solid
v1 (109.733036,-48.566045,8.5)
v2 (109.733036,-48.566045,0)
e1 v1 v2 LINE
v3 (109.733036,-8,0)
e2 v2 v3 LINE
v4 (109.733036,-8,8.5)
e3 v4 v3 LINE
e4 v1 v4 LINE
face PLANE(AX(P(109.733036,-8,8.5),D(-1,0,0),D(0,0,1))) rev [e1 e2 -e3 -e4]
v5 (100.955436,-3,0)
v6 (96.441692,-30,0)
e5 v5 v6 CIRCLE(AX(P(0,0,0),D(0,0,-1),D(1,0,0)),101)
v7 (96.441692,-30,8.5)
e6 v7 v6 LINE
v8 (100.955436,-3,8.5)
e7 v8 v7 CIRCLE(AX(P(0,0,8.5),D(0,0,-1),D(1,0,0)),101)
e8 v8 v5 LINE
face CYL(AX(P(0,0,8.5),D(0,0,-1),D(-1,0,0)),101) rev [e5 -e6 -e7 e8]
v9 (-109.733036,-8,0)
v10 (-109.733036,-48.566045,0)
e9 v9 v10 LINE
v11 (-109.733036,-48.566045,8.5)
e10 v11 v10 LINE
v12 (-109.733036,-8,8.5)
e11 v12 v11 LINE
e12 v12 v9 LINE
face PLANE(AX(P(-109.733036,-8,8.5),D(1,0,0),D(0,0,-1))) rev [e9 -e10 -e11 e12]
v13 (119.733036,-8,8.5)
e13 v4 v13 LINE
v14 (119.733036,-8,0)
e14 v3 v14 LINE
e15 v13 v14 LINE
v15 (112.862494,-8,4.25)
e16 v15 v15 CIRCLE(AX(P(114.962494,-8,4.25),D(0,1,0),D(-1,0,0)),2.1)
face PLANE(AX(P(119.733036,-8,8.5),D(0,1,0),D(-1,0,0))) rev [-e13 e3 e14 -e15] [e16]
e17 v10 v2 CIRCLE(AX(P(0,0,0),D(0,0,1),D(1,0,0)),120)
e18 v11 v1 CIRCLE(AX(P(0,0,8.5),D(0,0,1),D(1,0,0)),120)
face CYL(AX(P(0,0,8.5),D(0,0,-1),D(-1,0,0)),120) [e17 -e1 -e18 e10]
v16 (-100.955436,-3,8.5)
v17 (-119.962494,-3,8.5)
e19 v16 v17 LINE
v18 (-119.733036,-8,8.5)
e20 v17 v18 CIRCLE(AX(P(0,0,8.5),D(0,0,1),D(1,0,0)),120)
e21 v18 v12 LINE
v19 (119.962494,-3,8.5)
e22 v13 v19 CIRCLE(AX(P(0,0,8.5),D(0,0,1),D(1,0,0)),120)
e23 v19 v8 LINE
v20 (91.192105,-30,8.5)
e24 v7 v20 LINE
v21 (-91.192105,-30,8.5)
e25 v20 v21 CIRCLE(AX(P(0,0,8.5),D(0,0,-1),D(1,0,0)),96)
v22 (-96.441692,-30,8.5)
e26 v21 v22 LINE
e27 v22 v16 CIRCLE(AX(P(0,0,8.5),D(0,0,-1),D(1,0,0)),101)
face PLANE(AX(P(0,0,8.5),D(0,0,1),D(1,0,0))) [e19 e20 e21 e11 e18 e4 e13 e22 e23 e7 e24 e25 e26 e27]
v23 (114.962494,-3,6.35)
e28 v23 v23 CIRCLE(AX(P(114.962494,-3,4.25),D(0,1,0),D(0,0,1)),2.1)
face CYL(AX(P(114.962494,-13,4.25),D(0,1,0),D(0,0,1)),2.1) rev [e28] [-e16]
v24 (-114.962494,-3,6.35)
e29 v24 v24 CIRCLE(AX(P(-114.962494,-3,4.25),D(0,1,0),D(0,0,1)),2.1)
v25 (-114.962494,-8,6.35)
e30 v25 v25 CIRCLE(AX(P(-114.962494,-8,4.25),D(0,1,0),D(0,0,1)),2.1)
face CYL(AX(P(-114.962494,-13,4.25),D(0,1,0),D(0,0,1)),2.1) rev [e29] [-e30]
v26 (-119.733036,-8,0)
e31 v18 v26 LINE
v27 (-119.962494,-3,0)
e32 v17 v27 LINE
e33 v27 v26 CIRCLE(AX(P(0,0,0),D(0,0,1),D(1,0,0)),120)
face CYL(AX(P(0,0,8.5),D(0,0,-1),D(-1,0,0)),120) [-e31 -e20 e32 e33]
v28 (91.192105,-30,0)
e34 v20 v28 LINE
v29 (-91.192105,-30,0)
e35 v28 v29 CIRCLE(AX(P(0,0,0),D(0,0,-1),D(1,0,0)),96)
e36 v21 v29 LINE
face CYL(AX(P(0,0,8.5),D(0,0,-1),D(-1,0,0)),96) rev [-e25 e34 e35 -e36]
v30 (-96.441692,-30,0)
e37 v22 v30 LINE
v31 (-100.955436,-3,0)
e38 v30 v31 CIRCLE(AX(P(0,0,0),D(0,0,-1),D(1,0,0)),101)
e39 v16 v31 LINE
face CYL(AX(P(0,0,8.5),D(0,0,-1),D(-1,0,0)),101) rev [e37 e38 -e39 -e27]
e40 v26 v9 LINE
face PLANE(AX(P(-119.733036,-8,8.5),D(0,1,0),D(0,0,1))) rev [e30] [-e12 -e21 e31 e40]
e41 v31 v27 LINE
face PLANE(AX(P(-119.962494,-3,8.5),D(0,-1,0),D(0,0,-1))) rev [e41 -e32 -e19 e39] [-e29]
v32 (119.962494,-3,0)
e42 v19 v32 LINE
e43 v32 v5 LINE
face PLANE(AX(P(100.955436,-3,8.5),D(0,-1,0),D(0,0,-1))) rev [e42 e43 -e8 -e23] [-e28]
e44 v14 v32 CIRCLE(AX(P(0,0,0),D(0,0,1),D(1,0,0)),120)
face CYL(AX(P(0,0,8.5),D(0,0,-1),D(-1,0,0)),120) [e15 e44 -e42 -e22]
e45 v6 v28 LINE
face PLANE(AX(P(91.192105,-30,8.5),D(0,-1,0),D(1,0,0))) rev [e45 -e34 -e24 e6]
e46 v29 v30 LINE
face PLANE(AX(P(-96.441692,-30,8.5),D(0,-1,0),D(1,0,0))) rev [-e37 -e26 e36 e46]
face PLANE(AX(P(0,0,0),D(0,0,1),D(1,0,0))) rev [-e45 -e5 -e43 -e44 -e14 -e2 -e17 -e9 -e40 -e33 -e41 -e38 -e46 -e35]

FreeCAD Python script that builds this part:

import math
import FreeCAD as App
import Part
import Sketcher

V = App.Vector
Q = App.Units.Quantity

doc = App.newDocument("Part")
params = doc.addObject("Spreadsheet::Sheet", "Params")
for row, (alias, value) in enumerate([
    ("sketch1_radius", "120 mm"),
    ("sketch1_radius2", "101 mm"),
    ("sketch1_radius3", "96 mm"),
    ("sketch1_width", "10 mm"),
    ("pad1_length", "8.5 mm"),
    ("sketch2_diameter", "4.2 mm"),
    ("pocket1_length", "10 mm"),
], start=1):
    params.set(f"A{row}", alias)
    params.set(f"B{row}", "=" + value)
    params.setAlias(f"B{row}", alias)

body = doc.addObject("PartDesign::Body", "Body")

# Sketch on XY plane
sketch1 = body.newObject("Sketcher::SketchObject", "Sketch")
sketch1.AttachmentSupport = (doc.getObject("XY_Plane"), [""])
sketch1.MapMode = "FlatFace"
sketch1.addGeometry([
    Part.LineSegment(V(-120, -8, 0), V(-110, -8, 0)),  # 0
    Part.LineSegment(V(-110, -8, 0), V(-110, -49, 0)),  # 1
    Part.ArcOfCircle(Part.Circle(V(0, 0, 0), V(0, 0, 1), 120), math.radians(-156), math.radians(-24)),  # 2
    Part.LineSegment(V(110, -49, 0), V(110, -8, 0)),  # 3
    Part.LineSegment(V(110, -8, 0), V(120, -8, 0)),  # 4
    Part.ArcOfCircle(Part.Circle(V(0, 0, 0), V(0, 0, 1), 120), math.radians(-3.82), math.radians(-1.43)),  # 5
    Part.LineSegment(V(120, -3, 0), V(101, -3, 0)),  # 6
    Part.ArcOfCircle(Part.Circle(V(0, 0, 0), V(0, 0, 1), 101), math.radians(-17.28), math.radians(-1.7)),  # 7
    Part.LineSegment(V(96, -30, 0), V(91, -30, 0)),  # 8
    Part.ArcOfCircle(Part.Circle(V(0, 0, 0), V(0, 0, 1), 96), math.radians(-162), math.radians(-18)),  # 9
    Part.LineSegment(V(-91, -30, 0), V(-96, -30, 0)),  # 10
    Part.ArcOfCircle(Part.Circle(V(0, 0, 0), V(0, 0, 1), 101), math.radians(-178.3), math.radians(-162.72)),  # 11
    Part.LineSegment(V(-101, -3, 0), V(-120, -3, 0)),  # 12
    Part.ArcOfCircle(Part.Circle(V(0, 0, 0), V(0, 0, 1), 120), math.radians(-178.57), math.radians(-176.18)),  # 13
], False)
sketch1.addConstraint([
    Sketcher.Constraint("Coincident", 0, 2, 1, 1),
    Sketcher.Constraint("Coincident", 1, 2, 2, 1),
    Sketcher.Constraint("Coincident", 2, 2, 3, 1),
    Sketcher.Constraint("Coincident", 3, 2, 4, 1),
    Sketcher.Constraint("Coincident", 4, 2, 5, 1),
    Sketcher.Constraint("Coincident", 5, 2, 6, 1),
    Sketcher.Constraint("Coincident", 6, 2, 7, 2),
    Sketcher.Constraint("Coincident", 7, 1, 8, 1),
    Sketcher.Constraint("Coincident", 8, 2, 9, 2),
    Sketcher.Constraint("Coincident", 9, 1, 10, 1),
    Sketcher.Constraint("Coincident", 10, 2, 11, 2),
    Sketcher.Constraint("Coincident", 11, 1, 12, 1),
    Sketcher.Constraint("Coincident", 12, 2, 13, 1),
    Sketcher.Constraint("Coincident", 13, 2, 0, 1),
    Sketcher.Constraint("Horizontal", 0),
    Sketcher.Constraint("Vertical", 1),
    Sketcher.Constraint("Vertical", 3),
    Sketcher.Constraint("Horizontal", 4),
    Sketcher.Constraint("Horizontal", 6),
    Sketcher.Constraint("Horizontal", 8),
    Sketcher.Constraint("Horizontal", 10),
    Sketcher.Constraint("Horizontal", 12),
    Sketcher.Constraint("Coincident", 2, 3, -1, 1),
    Sketcher.Constraint("Coincident", 5, 3, -1, 1),
    Sketcher.Constraint("Coincident", 7, 3, -1, 1),
    Sketcher.Constraint("Coincident", 9, 3, -1, 1),
    Sketcher.Constraint("Coincident", 11, 3, -1, 1),
    Sketcher.Constraint("Coincident", 13, 3, -1, 1),
    Sketcher.Constraint("Equal", 2, 5),
    Sketcher.Constraint("Equal", 7, 11),
    Sketcher.Constraint("Equal", 5, 13),
    Sketcher.Constraint("Symmetric", 0, 2, 3, 2, -2),
    Sketcher.Constraint("Horizontal", 8, 2, 9, 1),
    Sketcher.Constraint("Horizontal", 6, 2, 11, 1),
    Sketcher.Constraint("Radius", 2, Q("120 mm")),
    Sketcher.Constraint("Radius", 7, Q("101 mm")),
    Sketcher.Constraint("Radius", 9, Q("96 mm")),
    Sketcher.Constraint("DistanceX", 0, 1, 0, 2, Q("10 mm")),
    Sketcher.Constraint("DistanceY", 0, 2, -1, 1, Q("8 mm")),
    Sketcher.Constraint("DistanceY", 5, 2, -1, 1, Q("3 mm")),
    Sketcher.Constraint("DistanceY", 7, 1, -1, 1, Q("30 mm")),
])
sketch1.setExpression("Constraints[34]", "Params.sketch1_radius")
sketch1.setExpression("Constraints[35]", "Params.sketch1_radius2")
sketch1.setExpression("Constraints[36]", "Params.sketch1_radius3")
sketch1.setExpression("Constraints[37]", "Params.sketch1_width")
pad1 = body.newObject("PartDesign::Pad", "Pad")
pad1.Profile = sketch1
pad1.setExpression("Length", "Params.pad1_length")

# Sketch on XZ plane
sketch2 = body.newObject("Sketcher::SketchObject", "Sketch001")
sketch2.AttachmentSupport = (doc.getObject("XZ_Plane"), [""])
sketch2.MapMode = "FlatFace"
sketch2.AttachmentOffset = App.Placement(V(0, 0, 3), App.Rotation())
sketch2.addGeometry([
    Part.Circle(V(-115, 4.2, 0), V(0, 0, 1), 2.1),
    Part.Circle(V(115, 4.2, 0), V(0, 0, 1), 2.1),
], False)
sketch2.addConstraint([
    Sketcher.Constraint("Equal", 0, 1),
    Sketcher.Constraint("Symmetric", 0, 3, 1, 3, -2),
    Sketcher.Constraint("Diameter", 0, Q("4.2 mm")),
    Sketcher.Constraint("DistanceY", -1, 1, 0, 3, Q("4.25 mm")),
    Sketcher.Constraint("DistanceX", 0, 3, 1, 3, Q("229.924988 mm")),
])
sketch2.setExpression("Constraints[2]", "Params.sketch2_diameter")
pocket1 = body.newObject("PartDesign::Pocket", "Pocket")
pocket1.Profile = sketch2
pocket1.setExpression("Length", "Params.pocket1_length")
pocket1.Reversed = True

doc.recompute()
